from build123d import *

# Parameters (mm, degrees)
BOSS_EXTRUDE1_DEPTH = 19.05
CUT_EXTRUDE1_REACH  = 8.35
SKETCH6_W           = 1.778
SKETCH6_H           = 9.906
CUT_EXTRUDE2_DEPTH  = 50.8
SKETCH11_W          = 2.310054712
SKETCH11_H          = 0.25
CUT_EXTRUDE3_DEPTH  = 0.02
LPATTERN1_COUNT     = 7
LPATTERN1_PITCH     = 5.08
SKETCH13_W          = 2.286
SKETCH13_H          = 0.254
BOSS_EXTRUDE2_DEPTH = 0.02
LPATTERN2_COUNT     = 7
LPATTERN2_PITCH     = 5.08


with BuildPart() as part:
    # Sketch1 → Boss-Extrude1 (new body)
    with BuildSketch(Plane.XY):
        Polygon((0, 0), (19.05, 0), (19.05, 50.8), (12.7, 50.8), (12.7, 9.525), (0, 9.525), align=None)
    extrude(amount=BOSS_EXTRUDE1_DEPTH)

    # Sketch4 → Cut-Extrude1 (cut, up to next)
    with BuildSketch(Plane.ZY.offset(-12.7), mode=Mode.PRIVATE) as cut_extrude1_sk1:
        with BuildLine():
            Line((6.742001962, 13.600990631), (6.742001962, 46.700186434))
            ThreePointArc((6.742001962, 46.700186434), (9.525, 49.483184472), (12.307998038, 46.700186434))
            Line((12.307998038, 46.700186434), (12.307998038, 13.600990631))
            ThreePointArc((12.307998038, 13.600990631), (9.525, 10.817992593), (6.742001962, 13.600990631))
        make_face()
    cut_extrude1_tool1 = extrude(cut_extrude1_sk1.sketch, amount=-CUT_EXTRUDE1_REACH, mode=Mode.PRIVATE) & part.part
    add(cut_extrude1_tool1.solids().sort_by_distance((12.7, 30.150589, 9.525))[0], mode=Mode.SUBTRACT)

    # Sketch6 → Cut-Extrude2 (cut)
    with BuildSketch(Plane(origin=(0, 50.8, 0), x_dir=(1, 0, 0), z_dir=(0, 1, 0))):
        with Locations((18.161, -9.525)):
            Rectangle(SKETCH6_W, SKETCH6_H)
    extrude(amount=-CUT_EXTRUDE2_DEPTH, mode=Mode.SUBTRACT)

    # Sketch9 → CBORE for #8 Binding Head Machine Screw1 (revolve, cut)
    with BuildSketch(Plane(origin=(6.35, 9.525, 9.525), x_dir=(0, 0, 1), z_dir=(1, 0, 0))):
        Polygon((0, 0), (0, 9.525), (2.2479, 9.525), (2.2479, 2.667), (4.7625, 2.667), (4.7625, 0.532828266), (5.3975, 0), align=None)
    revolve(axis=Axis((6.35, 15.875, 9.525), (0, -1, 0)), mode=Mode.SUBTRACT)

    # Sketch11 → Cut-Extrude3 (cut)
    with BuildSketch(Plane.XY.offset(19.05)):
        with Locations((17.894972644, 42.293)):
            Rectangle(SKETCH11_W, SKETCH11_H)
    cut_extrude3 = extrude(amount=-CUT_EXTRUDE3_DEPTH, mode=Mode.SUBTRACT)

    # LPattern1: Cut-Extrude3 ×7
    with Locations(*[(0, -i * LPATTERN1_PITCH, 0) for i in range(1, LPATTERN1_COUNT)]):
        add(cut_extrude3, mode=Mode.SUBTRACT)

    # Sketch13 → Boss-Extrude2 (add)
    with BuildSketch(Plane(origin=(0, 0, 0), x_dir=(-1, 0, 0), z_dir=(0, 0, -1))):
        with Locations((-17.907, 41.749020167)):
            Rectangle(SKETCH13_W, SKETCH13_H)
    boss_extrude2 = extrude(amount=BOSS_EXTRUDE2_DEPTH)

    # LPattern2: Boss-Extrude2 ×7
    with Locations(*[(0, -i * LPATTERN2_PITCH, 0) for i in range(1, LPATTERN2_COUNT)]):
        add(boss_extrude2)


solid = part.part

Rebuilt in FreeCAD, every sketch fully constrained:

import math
import FreeCAD as App
import Part
import Sketcher
from FreeCAD import Vector
Q = App.Units.Quantity

doc = App.newDocument("Part")
params = doc.addObject("Spreadsheet::Sheet", "Params")
for row, (alias, value) in enumerate([
    ("sketch1_height", "2 in"),
    ("sketch1_width", "0.5 in"),
    ("sketch1_width2", "0.75 in"),
    ("sketch1_height2", "1.625 in"),
    ("pad1_length", "0.75 in"),
    ("sketch3_width", "0.07 in"),
    ("sketch3_height", "0.39 in"),
    ("pocket2_length", "2 in"),
    ("sketch4_width", "0.27 in"),
    ("sketch4_width2", "0.375 in"),
    ("sketch4_height", "0.099 in"),
    ("groove_angle", "360 deg"),
    ("pocket3_length", "0.02 mm"),
    ("linearpattern_pitch", "0.2 in"),
    ("sketch6_width", "0.09 in"),
    ("sketch6_height", "0.01 in"),
    ("pad2_length", "0.02 mm"),
    ("linearpattern2_pitch", "0.2 in"),
], start=1):
    params.set(f"A{row}", alias)
    params.set(f"B{row}", "=" + value)
    params.setAlias(f"B{row}", alias)

body = doc.addObject("PartDesign::Body", "Body")

# Sketch on XY plane
sketch1 = doc.addObject("Sketcher::SketchObject", "Sketch")
body.addObject(sketch1)
sketch1.AttachmentSupport = (doc.XY_Plane, [""])
sketch1.MapMode = "FlatFace"
sketch1.addGeometry([
    Part.LineSegment(Vector(0, 0, 0), Vector(19, 0, 0)),  # 0
    Part.LineSegment(Vector(19, 0, 0), Vector(19, 51, 0)),  # 1
    Part.LineSegment(Vector(19, 51, 0), Vector(13, 51, 0)),  # 2
    Part.LineSegment(Vector(13, 51, 0), Vector(13, 10, 0)),  # 3
    Part.LineSegment(Vector(13, 10, 0), Vector(0, 10, 0)),  # 4
    Part.LineSegment(Vector(0, 10, 0), Vector(0, 0, 0)),  # 5
], False)
sketch1.addConstraint([
    Sketcher.Constraint("Coincident", 0, 2, 1, 1),
    Sketcher.Constraint("Coincident", 1, 2, 2, 1),
    Sketcher.Constraint("Coincident", 2, 2, 3, 1),
    Sketcher.Constraint("Coincident", 3, 2, 4, 1),
    Sketcher.Constraint("Coincident", 4, 2, 5, 1),
    Sketcher.Constraint("Coincident", 5, 2, 0, 1),
    Sketcher.Constraint("Horizontal", 0),
    Sketcher.Constraint("Vertical", 1),
    Sketcher.Constraint("Horizontal", 2),
    Sketcher.Constraint("Vertical", 3),
    Sketcher.Constraint("Horizontal", 4),
    Sketcher.Constraint("Vertical", 5),
    Sketcher.Constraint("Coincident", 5, 2, -1, 1),
    Sketcher.Constraint("DistanceY", 1, 1, 1, 2, Q("2 in")),
    Sketcher.Constraint("DistanceX", 4, 2, 4, 1, Q("0.5 in")),
    Sketcher.Constraint("DistanceX", 0, 1, 0, 2, Q("0.75 in")),
    Sketcher.Constraint("DistanceY", 3, 2, 3, 1, Q("1.625 in")),
])
sketch1.setExpression("Constraints[13]", "Params.sketch1_height")
sketch1.setExpression("Constraints[14]", "Params.sketch1_width")
sketch1.setExpression("Constraints[15]", "Params.sketch1_width2")
sketch1.setExpression("Constraints[16]", "Params.sketch1_height2")
pad1 = doc.addObject("PartDesign::Pad", "Pad")
body.addObject(pad1)
pad1.Profile = sketch1
pad1.setExpression("Length", "Params.pad1_length")

# Sketch on YZ plane
sketch2 = doc.addObject("Sketcher::SketchObject", "Sketch001")
body.addObject(sketch2)
sketch2.AttachmentSupport = (doc.YZ_Plane, [""])
sketch2.MapMode = "FlatFace"
sketch2.AttachmentOffset = App.Placement(Vector(0, 0, 0.5 * 25.4), App.Rotation())
sketch2.addGeometry([
    Part.LineSegment(Vector(46.7, 6.7, 0), Vector(13.6, 6.7, 0)),
    Part.ArcOfCircle(Part.Circle(Vector(13.6, 9.5, 0), Vector(0, 0, 1), 2.8), math.radians(90), math.radians(270)),
    Part.LineSegment(Vector(13.6, 12.3, 0), Vector(46.7, 12.3, 0)),
    Part.ArcOfCircle(Part.Circle(Vector(46.7, 9.5, 0), Vector(0, 0, 1), 2.8), math.radians(-90), math.radians(90)),
], False)
sketch2.addConstraint([
    Sketcher.Constraint("Tangent", 0, 2, 1, 2),
    Sketcher.Constraint("Tangent", 1, 1, 2, 1),
    Sketcher.Constraint("Tangent", 2, 2, 3, 2),
    Sketcher.Constraint("Tangent", 3, 1, 0, 1),
    Sketcher.Constraint("Horizontal", 0),
    Sketcher.Constraint("Horizontal", 2),
    Sketcher.Constraint("Radius", 1, Q("2.782998 mm")),
    Sketcher.Constraint("DistanceY", -1, 1, 1, 3, Q("0.375 in")),
    Sketcher.Constraint("DistanceX", 0, 2, 0, 1, Q("33.099196 mm")),
    Sketcher.Constraint("DistanceX", -1, 1, 1, 3, Q("13.600991 mm")),
])
pocket1 = doc.addObject("PartDesign::Pocket", "Pocket")
body.addObject(pocket1)
pocket1.Profile = sketch2
pocket1.Type = "UpToFirst"
pocket1.Reversed = True

# Sketch on XZ plane
sketch3 = doc.addObject("Sketcher::SketchObject", "Sketch002")
body.addObject(sketch3)
sketch3.AttachmentSupport = (doc.XZ_Plane, [""])
sketch3.MapMode = "FlatFace"
sketch3.AttachmentOffset = App.Placement(Vector(0, 0, -2 * 25.4), App.Rotation())
sketch3.addGeometry([
    Part.LineSegment(Vector(17.3, 4.6, 0), Vector(17.3, 14.5, 0)),
    Part.LineSegment(Vector(17.3, 14.5, 0), Vector(19.1, 14.5, 0)),
    Part.LineSegment(Vector(19.1, 14.5, 0), Vector(19.1, 4.6, 0)),
    Part.LineSegment(Vector(19.1, 4.6, 0), Vector(17.3, 4.6, 0)),
], False)
sketch3.addConstraint([
    Sketcher.Constraint("Coincident", 0, 2, 1, 1),
    Sketcher.Constraint("Coincident", 1, 2, 2, 1),
    Sketcher.Constraint("Coincident", 2, 2, 3, 1),
    Sketcher.Constraint("Coincident", 3, 2, 0, 1),
    Sketcher.Constraint("Vertical", 0),
    Sketcher.Constraint("Horizontal", 1),
    Sketcher.Constraint("Vertical", 2),
    Sketcher.Constraint("Horizontal", 3),
    Sketcher.Constraint("DistanceX", 1, 1, 1, 2, Q("0.07 in")),
    Sketcher.Constraint("DistanceY", 0, 1, 0, 2, Q("0.39 in")),
    Sketcher.Constraint("DistanceX", -1, 1, 0, 2, Q("0.68 in")),
    Sketcher.Constraint("DistanceY", -1, 1, 0, 2, Q("0.57 in")),
])
sketch3.setExpression("Constraints[8]", "Params.sketch3_width")
sketch3.setExpression("Constraints[9]", "Params.sketch3_height")
pocket2 = doc.addObject("PartDesign::Pocket", "Pocket001")
body.addObject(pocket2)
pocket2.Profile = sketch3
pocket2.setExpression("Length", "Params.pocket2_length")
pocket2.Reversed = True

# Sketch on YZ plane
sketch4 = doc.addObject("Sketcher::SketchObject", "Sketch003")
body.addObject(sketch4)
sketch4.AttachmentSupport = (doc.YZ_Plane, [""])
sketch4.MapMode = "FlatFace"
sketch4.AttachmentOffset = App.Placement(Vector(0, 0, 0.25 * 25.4), App.Rotation())
sketch4.addGeometry([
    Part.LineSegment(Vector(0, 9.5, 0), Vector(9.5, 9.5, 0)),  # 0
    Part.LineSegment(Vector(9.5, 9.5, 0), Vector(9.5, 14.9, 0)),  # 1
    Part.LineSegment(Vector(9.5, 14.9, 0), Vector(9, 14.3, 0)),  # 2
    Part.LineSegment(Vector(9, 14.3, 0), Vector(6.9, 14.3, 0)),  # 3
    Part.LineSegment(Vector(6.9, 14.3, 0), Vector(6.9, 11.8, 0)),  # 4
    Part.LineSegment(Vector(6.9, 11.8, 0), Vector(0, 11.8, 0)),  # 5
    Part.LineSegment(Vector(0, 11.8, 0), Vector(0, 9.5, 0)),  # 6
], False)
sketch4.addGeometry(Part.LineSegment(Vector(9.5, 9.5, 0), Vector(0, 9.5, 0)), True)  # axis
sketch4.addConstraint([
    Sketcher.Constraint("Coincident", 0, 2, 1, 1),
    Sketcher.Constraint("Coincident", 1, 2, 2, 1),
    Sketcher.Constraint("Coincident", 2, 2, 3, 1),
    Sketcher.Constraint("Coincident", 3, 2, 4, 1),
    Sketcher.Constraint("Coincident", 4, 2, 5, 1),
    Sketcher.Constraint("Coincident", 5, 2, 6, 1),
    Sketcher.Constraint("Coincident", 6, 2, 0, 1),
    Sketcher.Constraint("Horizontal", 0),
    Sketcher.Constraint("Vertical", 1),
    Sketcher.Constraint("Horizontal", 3),
    Sketcher.Constraint("Vertical", 4),
    Sketcher.Constraint("Horizontal", 5),
    Sketcher.Constraint("Vertical", 6),
    Sketcher.Constraint("Horizontal", 7),
    Sketcher.Constraint("Coincident", 7, 1, 0, 2),
    Sketcher.Constraint("PointOnObject", 5, 2, -2),
    Sketcher.Constraint("PointOnObject", 7, 2, -2),
    Sketcher.Constraint("Angle", 2, Q("-130 deg")),
    Sketcher.Constraint("DistanceX", 5, 2, 5, 1, Q("0.27 in")),
    Sketcher.Constraint("DistanceX", 0, 1, 0, 2, Q("0.375 in")),
    Sketcher.Constraint("DistanceY", 4, 2, 4, 1, Q("0.099 in")),
    Sketcher.Constraint("DistanceY", 1, 1, 1, 2, Q("0.2125 in")),
    Sketcher.Constraint("DistanceY", 6, 2, 6, 1, Q("0.0885 in")),
    Sketcher.Constraint("DistanceY", -1, 1, 0, 2, Q("0.375 in")),
])
sketch4.setExpression("Constraints[18]", "Params.sketch4_width")
sketch4.setExpression("Constraints[19]", "Params.sketch4_width2")
sketch4.setExpression("Constraints[20]", "Params.sketch4_height")
groove = doc.addObject("PartDesign::Groove", "Groove")
body.addObject(groove)
groove.Profile = sketch4
groove.ReferenceAxis = (sketch4, ["Axis0"])
groove.setExpression("Angle", "Params.groove_angle")

# Sketch on XY plane
sketch5 = doc.addObject("Sketcher::SketchObject", "Sketch004")
body.addObject(sketch5)
sketch5.AttachmentSupport = (doc.XY_Plane, [""])
sketch5.MapMode = "FlatFace"
sketch5.AttachmentOffset = App.Placement(Vector(0, 0, 0.75 * 25.4), App.Rotation())
sketch5.addGeometry([
    Part.LineSegment(Vector(16.74, 42.42, 0), Vector(16.74, 42.17, 0)),
    Part.LineSegment(Vector(16.74, 42.17, 0), Vector(19.05, 42.17, 0)),
    Part.LineSegment(Vector(19.05, 42.17, 0), Vector(19.05, 42.42, 0)),
    Part.LineSegment(Vector(19.05, 42.42, 0), Vector(16.74, 42.42, 0)),
], False)
sketch5.addConstraint([
    Sketcher.Constraint("Coincident", 0, 2, 1, 1),
    Sketcher.Constraint("Coincident", 1, 2, 2, 1),
    Sketcher.Constraint("Coincident", 2, 2, 3, 1),
    Sketcher.Constraint("Coincident", 3, 2, 0, 1),
    Sketcher.Constraint("Vertical", 0),
    Sketcher.Constraint("Horizontal", 1),
    Sketcher.Constraint("Vertical", 2),
    Sketcher.Constraint("Horizontal", 3),
    Sketcher.Constraint("DistanceX", -1, 1, 1, 2, Q("0.75 in")),
    Sketcher.Constraint("DistanceY", -1, 1, 2, 2, Q("1.67 in")),
    Sketcher.Constraint("DistanceY", 0, 2, 0, 1, Q("0.25 mm")),
    Sketcher.Constraint("DistanceX", 1, 1, 1, 2, Q("2.310055 mm")),
])
pocket3 = doc.addObject("PartDesign::Pocket", "Pocket002")
body.addObject(pocket3)
pocket3.Profile = sketch5
pocket3.setExpression("Length", "Params.pocket3_length")
doc.recompute()

linearpattern = doc.addObject("PartDesign::LinearPattern", "LinearPattern")
body.addObject(linearpattern)
linearpattern.Originals = [pocket3]
linearpattern.Direction = (doc.Y_Axis, [""])
linearpattern.Mode = "offset"
linearpattern.setExpression("Offset", "Params.linearpattern_pitch")
linearpattern.Occurrences = 7
linearpattern.Reversed = True
body.Tip = linearpattern

# Sketch on XY plane
sketch6 = doc.addObject("Sketcher::SketchObject", "Sketch005")
body.addObject(sketch6)
sketch6.AttachmentSupport = (doc.XY_Plane, [""])
sketch6.MapMode = "FlatFace"
sketch6.addGeometry([
    Part.LineSegment(Vector(19.05, 41.88, 0), Vector(19.05, 41.62, 0)),
    Part.LineSegment(Vector(19.05, 41.62, 0), Vector(16.76, 41.62, 0)),
    Part.LineSegment(Vector(16.76, 41.62, 0), Vector(16.76, 41.88, 0)),
    Part.LineSegment(Vector(16.76, 41.88, 0), Vector(19.05, 41.88, 0)),
], False)
sketch6.addConstraint([
    Sketcher.Constraint("Coincident", 0, 2, 1, 1),
    Sketcher.Constraint("Coincident", 1, 2, 2, 1),
    Sketcher.Constraint("Coincident", 2, 2, 3, 1),
    Sketcher.Constraint("Coincident", 3, 2, 0, 1),
    Sketcher.Constraint("Vertical", 0),
    Sketcher.Constraint("Horizontal", 1),
    Sketcher.Constraint("Vertical", 2),
    Sketcher.Constraint("Horizontal", 3),
    Sketcher.Constraint("DistanceX", 1, 2, 1, 1, Q("0.09 in")),
    Sketcher.Constraint("DistanceY", 0, 2, 0, 1, Q("0.01 in")),
    Sketcher.Constraint("DistanceX", -1, 1, 0, 2, Q("0.75 in")),
    Sketcher.Constraint("DistanceY", -1, 1, 0, 2, Q("41.62202 mm")),
])
sketch6.setExpression("Constraints[8]", "Params.sketch6_width")
sketch6.setExpression("Constraints[9]", "Params.sketch6_height")
pad2 = doc.addObject("PartDesign::Pad", "Pad001")
body.addObject(pad2)
pad2.Profile = sketch6
pad2.setExpression("Length", "Params.pad2_length")
pad2.Reversed = True
doc.recompute()

linearpattern2 = doc.addObject("PartDesign::LinearPattern", "LinearPattern001")
body.addObject(linearpattern2)
linearpattern2.Originals = [pad2]
linearpattern2.Direction = (doc.Y_Axis, [""])
linearpattern2.Mode = "offset"
linearpattern2.setExpression("Offset", "Params.linearpattern2_pitch")
linearpattern2.Occurrences = 7
linearpattern2.Reversed = True
body.Tip = linearpattern2

doc.recompute()
